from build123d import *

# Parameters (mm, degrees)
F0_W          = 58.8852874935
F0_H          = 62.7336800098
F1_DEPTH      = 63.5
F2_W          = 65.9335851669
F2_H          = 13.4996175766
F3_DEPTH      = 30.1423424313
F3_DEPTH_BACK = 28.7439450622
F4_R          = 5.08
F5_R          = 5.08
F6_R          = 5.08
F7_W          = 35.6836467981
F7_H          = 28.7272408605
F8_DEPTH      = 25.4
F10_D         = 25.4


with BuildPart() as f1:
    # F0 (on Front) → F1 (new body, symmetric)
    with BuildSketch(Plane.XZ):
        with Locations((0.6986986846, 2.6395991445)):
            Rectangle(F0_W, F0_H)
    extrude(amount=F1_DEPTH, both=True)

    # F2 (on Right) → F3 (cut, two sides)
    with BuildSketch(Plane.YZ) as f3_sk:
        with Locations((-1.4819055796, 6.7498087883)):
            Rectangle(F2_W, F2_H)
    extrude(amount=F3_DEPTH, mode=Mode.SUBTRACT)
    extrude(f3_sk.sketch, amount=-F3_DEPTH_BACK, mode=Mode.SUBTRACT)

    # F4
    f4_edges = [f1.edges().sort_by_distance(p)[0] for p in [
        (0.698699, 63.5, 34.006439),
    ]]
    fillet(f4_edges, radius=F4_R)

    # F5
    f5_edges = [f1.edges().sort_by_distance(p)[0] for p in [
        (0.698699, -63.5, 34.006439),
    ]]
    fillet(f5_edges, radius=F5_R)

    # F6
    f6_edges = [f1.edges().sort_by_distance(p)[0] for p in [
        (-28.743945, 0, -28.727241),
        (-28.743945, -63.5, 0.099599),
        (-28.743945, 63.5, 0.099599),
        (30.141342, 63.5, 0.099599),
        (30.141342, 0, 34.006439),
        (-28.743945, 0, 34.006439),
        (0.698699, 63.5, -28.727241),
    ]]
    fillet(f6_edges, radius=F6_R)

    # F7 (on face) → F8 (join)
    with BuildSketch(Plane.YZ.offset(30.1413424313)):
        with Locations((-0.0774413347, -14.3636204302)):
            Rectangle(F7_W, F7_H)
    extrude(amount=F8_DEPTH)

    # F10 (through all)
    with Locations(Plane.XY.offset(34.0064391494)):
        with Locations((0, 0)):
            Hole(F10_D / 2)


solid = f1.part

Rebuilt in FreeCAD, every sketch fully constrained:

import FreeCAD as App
import Part
import Sketcher
from FreeCAD import Vector
Q = App.Units.Quantity


def edges_at(feature, points):
    """Names of the edges that pass closest to the given points."""
    edges = feature.Shape.Edges
    near = lambda p: min(range(len(edges)), key=lambda i: edges[i].distToShape(Part.Vertex(*p))[0])
    return sorted({f"Edge{near(p) + 1}" for p in points})


def add_polygon(sketch, points):
    """Adds a closed chain of lines whose ends are joined by coincident constraints."""
    first, n = sketch.GeometryCount, len(points)
    for a, b in zip(points, points[1:] + points[:1]):
        sketch.addGeometry(Part.LineSegment(App.Vector(*a, 0), App.Vector(*b, 0)), False)
    for i in range(n):
        sketch.addConstraint(Sketcher.Constraint("Coincident", first + i, 2, first + (i + 1) % n, 1))

doc = App.newDocument("Part")
body = doc.addObject("PartDesign::Body", "Body")

sketch1 = body.newObject("Sketcher::SketchObject", "Sketch")
sketch1.AttachmentSupport = (doc.getObject("XZ_Plane"), [""])
sketch1.MapMode = "FlatFace"
add_polygon(sketch1, [(-29, 34), (-29, -29), (30, -29), (30, 34)])
sketch1.addConstraint([
    Sketcher.Constraint("Vertical", 0),
    Sketcher.Constraint("Horizontal", 1),
    Sketcher.Constraint("Vertical", 2),
    Sketcher.Constraint("Horizontal", 3),
    Sketcher.Constraint("DistanceY", 0, 2, 0, 1, Q("62.73368 mm")),
    Sketcher.Constraint("DistanceX", 1, 1, 1, 2, Q("58.885287 mm")),
    Sketcher.Constraint("DistanceY", 0, 2, -1, 1, Q("28.727241 mm")),
    Sketcher.Constraint("DistanceX", 0, 2, -1, 1, Q("28.743945 mm")),
])
pad1 = body.newObject("PartDesign::Pad", "Pad")
pad1.Profile = sketch1
pad1.Length = Q("5 in")
pad1.Midplane = True

sketch2 = body.newObject("Sketcher::SketchObject", "Sketch001")
sketch2.AttachmentSupport = (doc.getObject("YZ_Plane"), [""])
sketch2.MapMode = "FlatFace"
add_polygon(sketch2, [(-34, 13), (-34, 0), (31, 0), (31, 13)])
sketch2.addConstraint([
    Sketcher.Constraint("Vertical", 0),
    Sketcher.Constraint("Horizontal", 1),
    Sketcher.Constraint("Vertical", 2),
    Sketcher.Constraint("Horizontal", 3),
    Sketcher.Constraint("PointOnObject", 0, 2, -1),
    Sketcher.Constraint("DistanceX", 0, 2, -1, 1, Q("34.448698 mm")),
    Sketcher.Constraint("DistanceX", 1, 1, 1, 2, Q("65.933585 mm")),
    Sketcher.Constraint("DistanceY", 0, 2, 0, 1, Q("13.499618 mm")),
])
pocket1 = body.newObject("PartDesign::Pocket", "Pocket")
pocket1.Profile = sketch2
pocket1.Type = "ThroughAll"
pocket1.Midplane = True
doc.recompute()

fillet = body.newObject("PartDesign::Fillet", "Fillet")
fillet.Base = (pocket1, edges_at(pocket1, [(0.699, 63.5, 34.006)]))
fillet.Radius = Q("0.2 in")
doc.recompute()

fillet2 = body.newObject("PartDesign::Fillet", "Fillet001")
fillet2.Base = (fillet, edges_at(fillet, [(0.699, -63.5, 34.006)]))
fillet2.Radius = Q("0.2 in")
doc.recompute()

fillet3 = body.newObject("PartDesign::Fillet", "Fillet002")
fillet3.Base = (fillet2, edges_at(fillet2, [
    (-28.744, 0, -28.727),
    (-28.744, -63.5, 0.1),
    (-28.744, 63.5, 0.1),
    (30.141, 63.5, 0.1),
    (30.141, 0, 34.006),
    (-28.744, 0, 34.006),
    (0.699, 63.5, -28.727),
]))
fillet3.Radius = Q("0.2 in")

sketch3 = body.newObject("Sketcher::SketchObject", "Sketch002")
sketch3.AttachmentSupport = (doc.getObject("YZ_Plane"), [""])
sketch3.MapMode = "FlatFace"
sketch3.AttachmentOffset = App.Placement(Vector(0, 0, 30.141342), App.Rotation())
add_polygon(sketch3, [(-18, 0), (-18, -29), (18, -29), (18, 0)])
sketch3.addConstraint([
    Sketcher.Constraint("Vertical", 0),
    Sketcher.Constraint("Horizontal", 1),
    Sketcher.Constraint("Vertical", 2),
    Sketcher.Constraint("Horizontal", 3),
    Sketcher.Constraint("PointOnObject", 2, 2, -1),
    Sketcher.Constraint("DistanceY", 0, 2, 0, 1, Q("28.727241 mm")),
    Sketcher.Constraint("DistanceX", 1, 1, 1, 2, Q("35.683647 mm")),
    Sketcher.Constraint("DistanceX", 0, 2, -1, 1, Q("17.919265 mm")),
])
pad2 = body.newObject("PartDesign::Pad", "Pad001")
pad2.Profile = sketch3
pad2.Length = Q("1 in")

sketch4 = body.newObject("Sketcher::SketchObject", "Sketch003")
sketch4.AttachmentSupport = (doc.getObject("XY_Plane"), [""])
sketch4.MapMode = "FlatFace"
sketch4.AttachmentOffset = App.Placement(Vector(0, 0, 34.006439), App.Rotation())
sketch4.addGeometry(Part.Circle(Vector(0, 0, 0), Vector(0, 0, 1), 13), False)
sketch4.addConstraint([
    Sketcher.Constraint("Coincident", 0, 3, -1, 1),
    Sketcher.Constraint("Diameter", 0, Q("1 in")),
])
doc.recompute()
hole = body.newObject("PartDesign::Hole", "Hole")
hole.Profile = sketch4
hole.ThreadType = "None"
hole.Diameter = Q("1 in")
hole.DepthType = "ThroughAll"

doc.recompute()
